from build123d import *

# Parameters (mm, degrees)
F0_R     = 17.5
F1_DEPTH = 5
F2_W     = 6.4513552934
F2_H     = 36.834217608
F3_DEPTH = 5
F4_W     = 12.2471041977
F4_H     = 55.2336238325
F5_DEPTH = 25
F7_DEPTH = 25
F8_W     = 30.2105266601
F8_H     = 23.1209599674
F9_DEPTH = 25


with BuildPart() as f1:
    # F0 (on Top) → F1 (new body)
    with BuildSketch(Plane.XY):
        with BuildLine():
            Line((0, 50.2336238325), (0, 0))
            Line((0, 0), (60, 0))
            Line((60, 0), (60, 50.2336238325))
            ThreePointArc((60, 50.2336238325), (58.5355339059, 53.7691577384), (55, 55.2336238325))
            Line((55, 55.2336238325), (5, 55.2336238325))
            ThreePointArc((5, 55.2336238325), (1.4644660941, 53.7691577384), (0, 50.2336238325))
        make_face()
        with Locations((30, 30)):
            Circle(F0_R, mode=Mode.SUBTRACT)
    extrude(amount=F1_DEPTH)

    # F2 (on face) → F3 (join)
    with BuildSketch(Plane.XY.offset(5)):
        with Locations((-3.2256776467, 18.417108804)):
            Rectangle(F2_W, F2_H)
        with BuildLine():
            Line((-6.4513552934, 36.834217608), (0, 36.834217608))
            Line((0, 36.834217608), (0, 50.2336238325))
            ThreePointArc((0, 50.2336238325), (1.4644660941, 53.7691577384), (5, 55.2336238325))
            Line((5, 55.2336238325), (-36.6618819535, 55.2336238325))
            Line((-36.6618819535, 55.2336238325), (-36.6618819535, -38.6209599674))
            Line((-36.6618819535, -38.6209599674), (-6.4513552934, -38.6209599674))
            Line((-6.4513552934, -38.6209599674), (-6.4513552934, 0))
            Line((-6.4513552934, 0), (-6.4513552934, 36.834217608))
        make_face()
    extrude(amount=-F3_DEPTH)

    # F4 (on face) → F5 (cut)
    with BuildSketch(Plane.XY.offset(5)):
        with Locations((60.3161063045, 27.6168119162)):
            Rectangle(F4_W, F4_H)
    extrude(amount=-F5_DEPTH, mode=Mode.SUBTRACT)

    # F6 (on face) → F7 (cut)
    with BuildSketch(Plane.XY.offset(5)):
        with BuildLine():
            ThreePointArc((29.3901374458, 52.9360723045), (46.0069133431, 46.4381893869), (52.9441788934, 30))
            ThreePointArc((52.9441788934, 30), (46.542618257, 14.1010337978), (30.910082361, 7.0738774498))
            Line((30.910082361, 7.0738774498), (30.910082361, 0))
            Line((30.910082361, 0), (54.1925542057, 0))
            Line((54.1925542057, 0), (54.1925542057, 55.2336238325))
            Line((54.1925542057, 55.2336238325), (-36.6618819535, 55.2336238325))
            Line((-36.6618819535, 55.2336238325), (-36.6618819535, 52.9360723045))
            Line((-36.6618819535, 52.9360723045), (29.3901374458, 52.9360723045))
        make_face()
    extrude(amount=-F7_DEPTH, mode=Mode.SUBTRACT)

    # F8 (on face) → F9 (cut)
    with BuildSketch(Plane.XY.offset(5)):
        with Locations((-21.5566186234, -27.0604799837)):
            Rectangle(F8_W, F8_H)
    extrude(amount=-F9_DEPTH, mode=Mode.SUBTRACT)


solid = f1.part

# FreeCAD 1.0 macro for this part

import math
import FreeCAD as App
import Part
import Sketcher

V = App.Vector

doc = App.newDocument("Part")
params = doc.addObject("Spreadsheet::Sheet", "Params")
for row, (alias, value) in enumerate([
    ("sketch1_diameter", "35 mm"),
    ("sketch1_radius", "5 mm"),
    ("sketch1_width", "60 mm"),
    ("pad1_length", "5 mm"),
    ("sketch2_radius", "5 mm"),
    ("pad2_length", "5 mm"),
    ("pocket1_length", "25 mm"),
    ("pocket2_length", "25 mm"),
    ("pocket3_length", "25 mm"),
], start=1):
    params.set(f"A{row}", alias)
    params.set(f"B{row}", "=" + value)
    params.setAlias(f"B{row}", alias)

body = doc.addObject("PartDesign::Body", "Body")

# Sketch on XY plane
sketch1 = body.newObject("Sketcher::SketchObject", "Sketch")
sketch1.AttachmentSupport = (doc.getObject("XY_Plane"), [""])
sketch1.MapMode = "FlatFace"
sketch1.addGeometry([
    Part.LineSegment(V(0, 50.233624, 0), V(0, 0, 0)),  # 0
    Part.LineSegment(V(0, 0, 0), V(60, 0, 0)),  # 1
    Part.LineSegment(V(60, 0, 0), V(60, 50.233624, 0)),  # 2
    Part.ArcOfCircle(Part.Circle(V(55, 50.233624, 0), V(0, 0, 1), 5), math.radians(0), math.radians(90)),  # 3
    Part.LineSegment(V(55, 55.233624, 0), V(5, 55.233624, 0)),  # 4
    Part.ArcOfCircle(Part.Circle(V(5, 50.233624, 0), V(0, 0, 1), 5), math.radians(90), math.radians(180)),  # 5
    Part.Circle(V(30, 30, 0), V(0, 0, 1), 17.5),  # 6
], False)
sketch1.addConstraint([
    Sketcher.Constraint("Coincident", 0, 2, 1, 1),
    Sketcher.Constraint("Coincident", 1, 2, 2, 1),
    Sketcher.Constraint("Tangent", 2, 2, 3, 1),
    Sketcher.Constraint("Tangent", 3, 2, 4, 1),
    Sketcher.Constraint("Tangent", 4, 2, 5, 1),
    Sketcher.Constraint("Tangent", 5, 2, 0, 1),
    Sketcher.Constraint("Vertical", 0),
    Sketcher.Constraint("Horizontal", 1),
    Sketcher.Constraint("Vertical", 2),
    Sketcher.Constraint("Horizontal", 4),
    Sketcher.Constraint("Coincident", 0, 2, -1, 1),
    Sketcher.Constraint("Equal", 3, 5),
    Sketcher.Constraint("Diameter", 6, 35.0),
    Sketcher.Constraint("Radius", 3, 5.0),
    Sketcher.Constraint("DistanceX", 1, 1, 1, 2, 60.0),
    Sketcher.Constraint("DistanceX", -1, 1, 6, 3, 30.0),
    Sketcher.Constraint("DistanceY", -1, 1, 6, 3, 30.0),
    Sketcher.Constraint("DistanceY", 0, 2, 0, 1, 50.233624),
])
sketch1.setExpression("Constraints[12]", "Params.sketch1_diameter")
sketch1.setExpression("Constraints[13]", "Params.sketch1_radius")
sketch1.setExpression("Constraints[14]", "Params.sketch1_width")
pad1 = body.newObject("PartDesign::Pad", "Pad")
pad1.Profile = sketch1
pad1.setExpression("Length", "Params.pad1_length")

# Sketch on XY plane
sketch2 = body.newObject("Sketcher::SketchObject", "Sketch001")
sketch2.AttachmentSupport = (doc.getObject("XY_Plane"), [""])
sketch2.MapMode = "FlatFace"
sketch2.AttachmentOffset = App.Placement(V(0, 0, 5), App.Rotation())
sketch2.addGeometry([
    Part.LineSegment(V(-6.451355, 0, 0), V(0, 0, 0)),  # 0
    Part.LineSegment(V(0, 0, 0), V(0, 50.233624, 0)),  # 1
    Part.ArcOfCircle(Part.Circle(V(5, 50.233624, 0), V(0, 0, 1), 5), math.radians(90), math.radians(180)),  # 2
    Part.LineSegment(V(5, 55.233624, 0), V(-36.661882, 55.233624, 0)),  # 3
    Part.LineSegment(V(-36.661882, 55.233624, 0), V(-36.661882, -38.62096, 0)),  # 4
    Part.LineSegment(V(-36.661882, -38.62096, 0), V(-6.451355, -38.62096, 0)),  # 5
    Part.LineSegment(V(-6.451355, -38.62096, 0), V(-6.451355, 0, 0)),  # 6
], False)
sketch2.addConstraint([
    Sketcher.Constraint("Coincident", 0, 2, 1, 1),
    Sketcher.Constraint("Tangent", 1, 2, 2, 2),
    Sketcher.Constraint("Tangent", 2, 1, 3, 1),
    Sketcher.Constraint("Coincident", 3, 2, 4, 1),
    Sketcher.Constraint("Coincident", 4, 2, 5, 1),
    Sketcher.Constraint("Coincident", 5, 2, 6, 1),
    Sketcher.Constraint("Coincident", 6, 2, 0, 1),
    Sketcher.Constraint("Horizontal", 0),
    Sketcher.Constraint("Vertical", 1),
    Sketcher.Constraint("Horizontal", 3),
    Sketcher.Constraint("Vertical", 4),
    Sketcher.Constraint("Horizontal", 5),
    Sketcher.Constraint("Vertical", 6),
    Sketcher.Constraint("Coincident", 0, 2, -1, 1),
    Sketcher.Constraint("Radius", 2, 5.0),
    Sketcher.Constraint("DistanceX", 3, 2, 3, 1, 41.661882),
    Sketcher.Constraint("DistanceY", 6, 1, 6, 2, 38.62096),
    Sketcher.Constraint("DistanceX", 0, 1, 0, 2, 6.451355),
    Sketcher.Constraint("DistanceY", 1, 1, 1, 2, 50.233624),
])
sketch2.setExpression("Constraints[14]", "Params.sketch2_radius")
pad2 = body.newObject("PartDesign::Pad", "Pad001")
pad2.Profile = sketch2
pad2.setExpression("Length", "Params.pad2_length")
pad2.Reversed = True

# Sketch on XY plane
sketch3 = body.newObject("Sketcher::SketchObject", "Sketch002")
sketch3.AttachmentSupport = (doc.getObject("XY_Plane"), [""])
sketch3.MapMode = "FlatFace"
sketch3.AttachmentOffset = App.Placement(V(0, 0, 5), App.Rotation())
sketch3.addGeometry([
    Part.LineSegment(V(54.192554, 55.233624, 0), V(54.192554, 0, 0)),
    Part.LineSegment(V(54.192554, 0, 0), V(66.439658, 0, 0)),
    Part.LineSegment(V(66.439658, 0, 0), V(66.439658, 55.233624, 0)),
    Part.LineSegment(V(66.439658, 55.233624, 0), V(54.192554, 55.233624, 0)),
], False)
sketch3.addConstraint([
    Sketcher.Constraint("Coincident", 0, 2, 1, 1),
    Sketcher.Constraint("Coincident", 1, 2, 2, 1),
    Sketcher.Constraint("Coincident", 2, 2, 3, 1),
    Sketcher.Constraint("Coincident", 3, 2, 0, 1),
    Sketcher.Constraint("Vertical", 0),
    Sketcher.Constraint("Horizontal", 1),
    Sketcher.Constraint("Vertical", 2),
    Sketcher.Constraint("Horizontal", 3),
    Sketcher.Constraint("PointOnObject", 0, 2, -1),
    Sketcher.Constraint("DistanceX", 1, 1, 1, 2, 12.247104),
    Sketcher.Constraint("DistanceY", 0, 2, 0, 1, 55.233624),
    Sketcher.Constraint("DistanceX", -1, 1, 1, 2, 66.439658),
])
pocket1 = body.newObject("PartDesign::Pocket", "Pocket")
pocket1.Profile = sketch3
pocket1.setExpression("Length", "Params.pocket1_length")

# Sketch on XY plane
sketch4 = body.newObject("Sketcher::SketchObject", "Sketch003")
sketch4.AttachmentSupport = (doc.getObject("XY_Plane"), [""])
sketch4.MapMode = "FlatFace"
sketch4.AttachmentOffset = App.Placement(V(0, 0, 5), App.Rotation())
sketch4.addGeometry([
    Part.ArcOfCircle(Part.Circle(V(30, 30, 0), V(0, 0, 1), 22.944179), math.radians(0), math.radians(91.523117)),  # 0
    Part.ArcOfCircle(Part.Circle(V(30, 30, 0), V(0, 0, 1), 22.944179), math.radians(-87.726763), math.radians(0)),  # 1
    Part.LineSegment(V(30.910082, 7.073877, 0), V(30.910082, 0, 0)),  # 2
    Part.LineSegment(V(30.910082, 0, 0), V(54.192554, 0, 0)),  # 3
    Part.LineSegment(V(54.192554, 0, 0), V(54.192554, 55.233624, 0)),  # 4
    Part.LineSegment(V(54.192554, 55.233624, 0), V(-36.661882, 55.233624, 0)),  # 5
    Part.LineSegment(V(-36.661882, 55.233624, 0), V(-36.661882, 52.936072, 0)),  # 6
    Part.LineSegment(V(-36.661882, 52.936072, 0), V(29.390137, 52.936072, 0)),  # 7
], False)
sketch4.addConstraint([
    Sketcher.Constraint("Tangent", 0, 1, 1, 2),
    Sketcher.Constraint("Coincident", 1, 1, 2, 1),
    Sketcher.Constraint("Coincident", 2, 2, 3, 1),
    Sketcher.Constraint("Coincident", 3, 2, 4, 1),
    Sketcher.Constraint("Coincident", 4, 2, 5, 1),
    Sketcher.Constraint("Coincident", 5, 2, 6, 1),
    Sketcher.Constraint("Coincident", 6, 2, 7, 1),
    Sketcher.Constraint("Coincident", 7, 2, 0, 2),
    Sketcher.Constraint("Vertical", 2),
    Sketcher.Constraint("Horizontal", 3),
    Sketcher.Constraint("Vertical", 4),
    Sketcher.Constraint("Horizontal", 5),
    Sketcher.Constraint("Vertical", 6),
    Sketcher.Constraint("Horizontal", 7),
    Sketcher.Constraint("Equal", 0, 1),
    Sketcher.Constraint("PointOnObject", 2, 2, -1),
    Sketcher.Constraint("Horizontal", 1, 3, 0, 1),
    Sketcher.Constraint("DistanceX", -1, 1, 0, 3, 30.0),
    Sketcher.Constraint("DistanceY", -1, 1, 0, 3, 30.0),
    Sketcher.Constraint("Radius", 0, 22.944179),
    Sketcher.Constraint("DistanceX", 3, 1, 3, 2, 23.282472),
    Sketcher.Constraint("DistanceX", 7, 1, 7, 2, 66.052019),
    Sketcher.Constraint("DistanceY", 6, 2, 6, 1, 2.297552),
    Sketcher.Constraint("DistanceX", 5, 2, 5, 1, 90.854436),
    Sketcher.Constraint("DistanceY", 2, 2, 2, 1, 7.073877),
])
pocket2 = body.newObject("PartDesign::Pocket", "Pocket001")
pocket2.Profile = sketch4
pocket2.setExpression("Length", "Params.pocket2_length")

# Sketch on XY plane
sketch5 = body.newObject("Sketcher::SketchObject", "Sketch004")
sketch5.AttachmentSupport = (doc.getObject("XY_Plane"), [""])
sketch5.MapMode = "FlatFace"
sketch5.AttachmentOffset = App.Placement(V(0, 0, 5), App.Rotation())
sketch5.addGeometry([
    Part.LineSegment(V(-36.661882, -15.5, 0), V(-36.661882, -38.62096, 0)),
    Part.LineSegment(V(-36.661882, -38.62096, 0), V(-6.451355, -38.62096, 0)),
    Part.LineSegment(V(-6.451355, -38.62096, 0), V(-6.451355, -15.5, 0)),
    Part.LineSegment(V(-6.451355, -15.5, 0), V(-36.661882, -15.5, 0)),
], False)
sketch5.addConstraint([
    Sketcher.Constraint("Coincident", 0, 2, 1, 1),
    Sketcher.Constraint("Coincident", 1, 2, 2, 1),
    Sketcher.Constraint("Coincident", 2, 2, 3, 1),
    Sketcher.Constraint("Coincident", 3, 2, 0, 1),
    Sketcher.Constraint("Vertical", 0),
    Sketcher.Constraint("Horizontal", 1),
    Sketcher.Constraint("Vertical", 2),
    Sketcher.Constraint("Horizontal", 3),
    Sketcher.Constraint("DistanceY", 2, 2, -1, 1, 15.5),
    Sketcher.Constraint("DistanceY", 0, 2, 0, 1, 23.12096),
    Sketcher.Constraint("DistanceX", 1, 1, 1, 2, 30.210527),
    Sketcher.Constraint("DistanceX", 0, 2, -1, 1, 36.661882),
])
pocket3 = body.newObject("PartDesign::Pocket", "Pocket002")
pocket3.Profile = sketch5
pocket3.setExpression("Length", "Params.pocket3_length")

doc.recompute()
